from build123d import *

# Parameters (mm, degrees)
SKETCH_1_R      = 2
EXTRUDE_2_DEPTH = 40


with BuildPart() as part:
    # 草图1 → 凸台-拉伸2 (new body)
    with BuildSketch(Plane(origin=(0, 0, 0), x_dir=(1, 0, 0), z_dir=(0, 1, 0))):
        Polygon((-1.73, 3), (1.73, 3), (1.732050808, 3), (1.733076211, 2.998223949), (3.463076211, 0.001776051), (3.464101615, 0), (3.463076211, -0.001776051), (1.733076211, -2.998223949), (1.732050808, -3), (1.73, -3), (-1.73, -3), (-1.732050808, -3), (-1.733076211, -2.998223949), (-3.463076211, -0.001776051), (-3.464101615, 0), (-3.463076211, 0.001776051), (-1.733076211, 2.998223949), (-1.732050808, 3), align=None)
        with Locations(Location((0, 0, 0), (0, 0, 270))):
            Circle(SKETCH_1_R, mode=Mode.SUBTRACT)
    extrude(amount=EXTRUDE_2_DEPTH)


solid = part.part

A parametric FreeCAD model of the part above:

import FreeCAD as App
import Part
import Sketcher
from FreeCAD import Vector
Q = App.Units.Quantity

doc = App.newDocument("Part")
body = doc.addObject("PartDesign::Body", "Body")

# Sketch on XZ plane
sketch1 = body.newObject("Sketcher::SketchObject", "Sketch")
sketch1.AttachmentSupport = (doc.getObject("XZ_Plane"), [""])
sketch1.MapMode = "FlatFace"
sketch1.addGeometry(Part.LineSegment(Vector(1.7321, -3, 0), Vector(-1.7321, -3, 0)), False)
sketch1.addGeometry(Part.LineSegment(Vector(-1.7321, -3, 0), Vector(-1.7331, -2.9982, 0)), False)
sketch1.addGeometry(Part.LineSegment(Vector(-1.7331, -2.9982, 0), Vector(-3.4631, -0.0018, 0)), False)
sketch1.addGeometry(Part.LineSegment(Vector(-3.4631, -0.0018, 0), Vector(-3.4641, 0, 0)), False)
sketch1.addGeometry(Part.LineSegment(Vector(-3.4641, 0, 0), Vector(-3.4631, 0.0018, 0)), False)
sketch1.addGeometry(Part.LineSegment(Vector(-3.4631, 0.0018, 0), Vector(-1.7331, 2.9982, 0)), False)
sketch1.addGeometry(Part.LineSegment(Vector(-1.7331, 2.9982, 0), Vector(-1.7321, 3, 0)), False)
sketch1.addGeometry(Part.LineSegment(Vector(-1.7321, 3, 0), Vector(1.7321, 3, 0)), False)
sketch1.addGeometry(Part.LineSegment(Vector(1.7321, 3, 0), Vector(1.7331, 2.9982, 0)), False)
sketch1.addGeometry(Part.LineSegment(Vector(1.7331, 2.9982, 0), Vector(3.4631, 0.0018, 0)), False)
sketch1.addGeometry(Part.LineSegment(Vector(3.4631, 0.0018, 0), Vector(3.4641, 0, 0)), False)
sketch1.addGeometry(Part.LineSegment(Vector(3.4641, 0, 0), Vector(3.4631, -0.0018, 0)), False)
sketch1.addGeometry(Part.LineSegment(Vector(3.4631, -0.0018, 0), Vector(1.7331, -2.9982, 0)), False)
sketch1.addGeometry(Part.LineSegment(Vector(1.7331, -2.9982, 0), Vector(1.7321, -3, 0)), False)
sketch1.addGeometry(Part.Circle(Vector(0, 0, 0), Vector(0, 0, 1), 2), False)
sketch1.addConstraint(Sketcher.Constraint("Coincident", 0, 2, 1, 1))
sketch1.addConstraint(Sketcher.Constraint("Coincident", 1, 2, 2, 1))
sketch1.addConstraint(Sketcher.Constraint("Coincident", 2, 2, 3, 1))
sketch1.addConstraint(Sketcher.Constraint("Coincident", 3, 2, 4, 1))
sketch1.addConstraint(Sketcher.Constraint("Coincident", 4, 2, 5, 1))
sketch1.addConstraint(Sketcher.Constraint("Coincident", 5, 2, 6, 1))
sketch1.addConstraint(Sketcher.Constraint("Coincident", 6, 2, 7, 1))
sketch1.addConstraint(Sketcher.Constraint("Coincident", 7, 2, 8, 1))
sketch1.addConstraint(Sketcher.Constraint("Coincident", 8, 2, 9, 1))
sketch1.addConstraint(Sketcher.Constraint("Coincident", 9, 2, 10, 1))
sketch1.addConstraint(Sketcher.Constraint("Coincident", 10, 2, 11, 1))
sketch1.addConstraint(Sketcher.Constraint("Coincident", 11, 2, 12, 1))
sketch1.addConstraint(Sketcher.Constraint("Coincident", 12, 2, 13, 1))
sketch1.addConstraint(Sketcher.Constraint("Coincident", 13, 2, 0, 1))
sketch1.addConstraint(Sketcher.Constraint("Horizontal", 0))
sketch1.addConstraint(Sketcher.Constraint("Horizontal", 7))
sketch1.addConstraint(Sketcher.Constraint("Coincident", 14, 3, -1, 1))
sketch1.addConstraint(Sketcher.Constraint("Symmetric", 0, 2, 7, 2, -1, 1))
sketch1.addConstraint(Sketcher.Constraint("Symmetric", 1, 2, 8, 2, -1, 1))
sketch1.addConstraint(Sketcher.Constraint("Symmetric", 2, 2, 9, 2, -1, 1))
sketch1.addConstraint(Sketcher.Constraint("Symmetric", 3, 2, 10, 2, -1, 1))
sketch1.addConstraint(Sketcher.Constraint("Symmetric", 4, 2, 11, 2, -1, 1))
sketch1.addConstraint(Sketcher.Constraint("Symmetric", 5, 2, 12, 2, -1, 1))
sketch1.addConstraint(Sketcher.Constraint("Symmetric", 5, 2, 8, 2, -2))
sketch1.addConstraint(Sketcher.Constraint("Symmetric", 4, 2, 9, 2, -2))
sketch1.addConstraint(Sketcher.Constraint("PointOnObject", 3, 2, -1))
sketch1.addConstraint(Sketcher.Constraint("Parallel", 1, 2))
sketch1.addConstraint(Sketcher.Constraint("Parallel", 2, 3))
sketch1.addConstraint(Sketcher.Constraint("Parallel", 5, 6))
sketch1.addConstraint(Sketcher.Constraint("Parallel", 12, 13))
sketch1.addConstraint(Sketcher.Constraint("Equal", 1, 3))
sketch1.addConstraint(Sketcher.Constraint("Diameter", 14, 4.0))
sketch1.addConstraint(Sketcher.Constraint("Angle", 2, Q("120 deg")))
sketch1.addConstraint(Sketcher.Constraint("DistanceY", 0, 2, -1, 1, 3.0))
sketch1.addConstraint(Sketcher.Constraint("Distance", 2, 3.46))
sketch1.addConstraint(Sketcher.Constraint("DistanceX", 0, 2, 0, 1, 3.464102))
pad1 = body.newObject("PartDesign::Pad", "Pad")
pad1.Profile = sketch1
pad1.Length = 40
pad1.Reversed = True

doc.recompute()
